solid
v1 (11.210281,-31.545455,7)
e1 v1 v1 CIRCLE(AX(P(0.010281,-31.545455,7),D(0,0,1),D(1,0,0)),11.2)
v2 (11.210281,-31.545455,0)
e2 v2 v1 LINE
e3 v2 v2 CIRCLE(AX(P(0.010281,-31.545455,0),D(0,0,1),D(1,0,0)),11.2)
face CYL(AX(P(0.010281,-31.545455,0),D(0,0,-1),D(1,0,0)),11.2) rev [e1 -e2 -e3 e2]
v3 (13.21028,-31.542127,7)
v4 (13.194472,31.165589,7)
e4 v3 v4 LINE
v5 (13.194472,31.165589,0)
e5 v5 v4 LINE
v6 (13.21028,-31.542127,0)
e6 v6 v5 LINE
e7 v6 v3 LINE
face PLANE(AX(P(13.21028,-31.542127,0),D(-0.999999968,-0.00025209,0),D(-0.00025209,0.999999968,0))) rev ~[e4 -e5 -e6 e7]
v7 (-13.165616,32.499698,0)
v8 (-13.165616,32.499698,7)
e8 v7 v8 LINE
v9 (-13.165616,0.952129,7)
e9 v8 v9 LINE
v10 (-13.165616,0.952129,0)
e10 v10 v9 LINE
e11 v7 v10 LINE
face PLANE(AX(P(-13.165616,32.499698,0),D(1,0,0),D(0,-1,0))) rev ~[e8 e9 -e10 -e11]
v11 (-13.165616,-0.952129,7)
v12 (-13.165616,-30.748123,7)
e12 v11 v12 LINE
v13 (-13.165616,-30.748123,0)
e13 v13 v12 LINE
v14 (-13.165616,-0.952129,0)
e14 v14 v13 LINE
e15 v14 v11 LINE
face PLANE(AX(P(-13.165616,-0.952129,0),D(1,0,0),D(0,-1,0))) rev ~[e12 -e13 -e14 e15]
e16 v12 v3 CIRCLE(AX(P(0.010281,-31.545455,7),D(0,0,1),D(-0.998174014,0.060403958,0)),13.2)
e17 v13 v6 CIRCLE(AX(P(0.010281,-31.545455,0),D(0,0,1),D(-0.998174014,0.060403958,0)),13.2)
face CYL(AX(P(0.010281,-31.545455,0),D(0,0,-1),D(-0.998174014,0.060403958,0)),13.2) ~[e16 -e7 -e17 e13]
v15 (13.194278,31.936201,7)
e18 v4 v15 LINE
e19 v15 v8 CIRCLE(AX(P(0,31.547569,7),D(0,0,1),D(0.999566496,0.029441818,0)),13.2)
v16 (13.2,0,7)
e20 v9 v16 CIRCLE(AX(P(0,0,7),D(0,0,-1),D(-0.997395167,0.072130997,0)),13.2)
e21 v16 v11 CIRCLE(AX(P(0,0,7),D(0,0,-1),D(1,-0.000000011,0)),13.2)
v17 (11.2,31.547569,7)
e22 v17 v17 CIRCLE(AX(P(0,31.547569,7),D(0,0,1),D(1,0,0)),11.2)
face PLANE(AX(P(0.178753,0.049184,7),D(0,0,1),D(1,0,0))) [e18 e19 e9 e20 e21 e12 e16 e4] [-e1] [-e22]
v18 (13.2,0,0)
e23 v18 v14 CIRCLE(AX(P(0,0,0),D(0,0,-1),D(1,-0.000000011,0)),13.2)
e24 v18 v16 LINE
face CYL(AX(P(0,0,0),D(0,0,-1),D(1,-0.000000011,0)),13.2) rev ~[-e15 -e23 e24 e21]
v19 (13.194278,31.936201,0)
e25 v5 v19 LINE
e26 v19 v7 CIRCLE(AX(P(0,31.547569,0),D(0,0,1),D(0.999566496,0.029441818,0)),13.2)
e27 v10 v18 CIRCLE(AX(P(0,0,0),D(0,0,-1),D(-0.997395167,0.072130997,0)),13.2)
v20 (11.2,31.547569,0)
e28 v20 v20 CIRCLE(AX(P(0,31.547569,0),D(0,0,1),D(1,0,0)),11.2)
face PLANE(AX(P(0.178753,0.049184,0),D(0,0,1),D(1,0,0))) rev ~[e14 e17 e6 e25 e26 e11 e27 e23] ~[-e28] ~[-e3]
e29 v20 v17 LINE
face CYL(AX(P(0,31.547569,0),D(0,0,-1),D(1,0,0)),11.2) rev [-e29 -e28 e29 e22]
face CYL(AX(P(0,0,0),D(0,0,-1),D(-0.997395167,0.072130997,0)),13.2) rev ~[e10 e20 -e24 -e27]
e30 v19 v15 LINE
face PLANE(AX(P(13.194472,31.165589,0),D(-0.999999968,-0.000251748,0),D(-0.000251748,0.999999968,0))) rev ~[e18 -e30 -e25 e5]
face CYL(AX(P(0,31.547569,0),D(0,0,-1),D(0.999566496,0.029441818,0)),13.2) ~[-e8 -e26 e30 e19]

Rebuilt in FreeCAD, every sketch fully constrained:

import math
import FreeCAD as App
import Part
import Sketcher

doc = App.newDocument("Part")
params = doc.addObject("Spreadsheet::Sheet", "Params")
for row, (alias, value) in enumerate([
    ("sketch1_diameter", "22.4 mm"),
    ("sketch1_radius", "13.2 mm"),
    ("pad1_length", "7 mm"),
], start=1):
    params.set(f"A{row}", alias)
    params.set(f"B{row}", "=" + value)
    params.setAlias(f"B{row}", alias)

body = doc.addObject("PartDesign::Body", "Body")

# Sketch on XY plane
sketch1 = body.newObject("Sketcher::SketchObject", "Sketch")
sketch1.AttachmentSupport = (doc.getObject("XY_Plane"), [""])
sketch1.MapMode = "FlatFace"
sketch1.addGeometry([
    Part.ArcOfCircle(Part.Circle(App.Vector(0, 0, 0), App.Vector(0, 0, 1), 13.2), math.radians(0), math.radians(176)),  # 0
    Part.ArcOfCircle(Part.Circle(App.Vector(0, 0, 0), App.Vector(0, 0, 1), 13.2), math.radians(-176), math.radians(0)),  # 1
    Part.LineSegment(App.Vector(-13.2, -1, 0), App.Vector(-13.2, -30.7, 0)),  # 2
    Part.ArcOfCircle(Part.Circle(App.Vector(0, -31.5, 0), App.Vector(0, 0, 1), 13.2), math.radians(177), math.radians(360)),  # 3
    Part.LineSegment(App.Vector(13.2, -31.5, 0), App.Vector(13.2, 31.2, 0)),  # 4
    Part.LineSegment(App.Vector(13.2, 31.2, 0), App.Vector(13.2, 31.9, 0)),  # 5
    Part.ArcOfCircle(Part.Circle(App.Vector(0, 31.5, 0), App.Vector(0, 0, 1), 13.2), math.radians(2), math.radians(176)),  # 6
    Part.LineSegment(App.Vector(-13.2, 32.5, 0), App.Vector(-13.2, 1, 0)),  # 7
    Part.Circle(App.Vector(0, -31.5, 0), App.Vector(0, 0, 1), 11.2),  # 8
    Part.Circle(App.Vector(0, 31.5, 0), App.Vector(0, 0, 1), 11.2),  # 9
], False)
sketch1.addConstraint([
    Sketcher.Constraint("Tangent", 0, 1, 1, 2),
    Sketcher.Constraint("Coincident", 1, 1, 2, 1),
    Sketcher.Constraint("Coincident", 2, 2, 3, 1),
    Sketcher.Constraint("Tangent", 3, 2, 4, 1),
    Sketcher.Constraint("Coincident", 4, 2, 5, 1),
    Sketcher.Constraint("Coincident", 5, 2, 6, 1),
    Sketcher.Constraint("Coincident", 6, 2, 7, 1),
    Sketcher.Constraint("Coincident", 7, 2, 0, 2),
    Sketcher.Constraint("Vertical", 2),
    Sketcher.Constraint("Vertical", 7),
    Sketcher.Constraint("Coincident", 0, 3, -1, 1),
    Sketcher.Constraint("Coincident", 8, 3, 3, 3),
    Sketcher.Constraint("Coincident", 9, 3, 6, 3),
    Sketcher.Constraint("Equal", 0, 1),
    Sketcher.Constraint("Equal", 1, 3),
    Sketcher.Constraint("Equal", 3, 6),
    Sketcher.Constraint("Equal", 8, 9),
    Sketcher.Constraint("PointOnObject", 6, 3, -2),
    Sketcher.Constraint("PointOnObject", 0, 1, -1),
    Sketcher.Constraint("Parallel", 4, 5),
    Sketcher.Constraint("Vertical", 2, 2, 6, 2),
    Sketcher.Constraint("Diameter", 8, 22.4),
    Sketcher.Constraint("Radius", 0, 13.2),
    Sketcher.Constraint("DistanceY", 7, 2, 7, 1, 31.547569),
    Sketcher.Constraint("DistanceY", -1, 1, 5, 2, 31.936201),
    Sketcher.Constraint("DistanceY", -1, 1, 6, 2, 32.499698),
    Sketcher.Constraint("DistanceY", 2, 2, 2, 1, 29.795994),
    Sketcher.Constraint("DistanceX", -1, 1, 3, 3, 0.010281),
    Sketcher.Constraint("DistanceY", -1, 1, 4, 2, 31.165589),
])
sketch1.setExpression("Constraints[21]", "Params.sketch1_diameter")
sketch1.setExpression("Constraints[22]", "Params.sketch1_radius")
pad1 = body.newObject("PartDesign::Pad", "Pad")
pad1.Profile = sketch1
pad1.setExpression("Length", "Params.pad1_length")

doc.recompute()
